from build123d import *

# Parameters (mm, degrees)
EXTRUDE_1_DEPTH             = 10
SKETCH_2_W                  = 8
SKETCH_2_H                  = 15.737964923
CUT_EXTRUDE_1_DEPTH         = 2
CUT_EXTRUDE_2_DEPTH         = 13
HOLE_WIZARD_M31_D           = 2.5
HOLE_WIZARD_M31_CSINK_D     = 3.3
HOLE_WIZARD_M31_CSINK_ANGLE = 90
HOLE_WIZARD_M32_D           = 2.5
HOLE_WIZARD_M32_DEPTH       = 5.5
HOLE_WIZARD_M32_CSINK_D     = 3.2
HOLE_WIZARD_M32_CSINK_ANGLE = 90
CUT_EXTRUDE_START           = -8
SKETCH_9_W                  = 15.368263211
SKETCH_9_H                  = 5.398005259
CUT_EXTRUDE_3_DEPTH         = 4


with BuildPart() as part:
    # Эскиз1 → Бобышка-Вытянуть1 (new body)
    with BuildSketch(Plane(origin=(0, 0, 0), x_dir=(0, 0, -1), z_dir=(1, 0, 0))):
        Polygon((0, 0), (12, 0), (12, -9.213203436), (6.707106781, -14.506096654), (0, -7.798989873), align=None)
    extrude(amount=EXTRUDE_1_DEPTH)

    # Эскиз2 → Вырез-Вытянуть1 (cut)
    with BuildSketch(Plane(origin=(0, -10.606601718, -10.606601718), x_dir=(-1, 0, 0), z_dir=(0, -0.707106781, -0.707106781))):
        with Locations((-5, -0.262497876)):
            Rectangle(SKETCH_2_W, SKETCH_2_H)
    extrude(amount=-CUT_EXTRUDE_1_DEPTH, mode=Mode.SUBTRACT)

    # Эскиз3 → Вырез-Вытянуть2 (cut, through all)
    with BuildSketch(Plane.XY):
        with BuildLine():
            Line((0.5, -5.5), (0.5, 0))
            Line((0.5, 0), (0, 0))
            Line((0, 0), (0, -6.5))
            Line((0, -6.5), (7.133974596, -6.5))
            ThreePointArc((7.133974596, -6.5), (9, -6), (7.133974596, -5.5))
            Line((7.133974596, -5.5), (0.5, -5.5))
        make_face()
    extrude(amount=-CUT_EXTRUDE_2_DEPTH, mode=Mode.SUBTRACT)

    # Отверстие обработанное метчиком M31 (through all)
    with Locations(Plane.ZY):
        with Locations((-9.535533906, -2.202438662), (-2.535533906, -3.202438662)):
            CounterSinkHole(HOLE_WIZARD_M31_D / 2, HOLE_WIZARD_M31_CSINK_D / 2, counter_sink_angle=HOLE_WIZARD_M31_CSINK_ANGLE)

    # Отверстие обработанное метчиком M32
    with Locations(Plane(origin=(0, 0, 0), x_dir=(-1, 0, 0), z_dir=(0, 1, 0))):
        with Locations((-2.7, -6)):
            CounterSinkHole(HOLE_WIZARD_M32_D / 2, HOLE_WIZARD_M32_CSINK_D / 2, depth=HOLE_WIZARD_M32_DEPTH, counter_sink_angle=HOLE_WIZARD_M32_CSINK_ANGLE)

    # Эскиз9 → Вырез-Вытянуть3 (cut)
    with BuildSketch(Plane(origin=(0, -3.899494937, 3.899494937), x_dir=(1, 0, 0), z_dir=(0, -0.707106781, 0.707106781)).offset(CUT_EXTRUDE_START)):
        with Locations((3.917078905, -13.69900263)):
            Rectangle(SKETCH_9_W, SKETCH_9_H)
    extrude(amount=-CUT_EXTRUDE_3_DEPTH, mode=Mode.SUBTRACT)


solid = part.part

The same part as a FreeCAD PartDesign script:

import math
import FreeCAD as App
import Part
import Sketcher
from FreeCAD import Vector
Q = App.Units.Quantity


def add_polygon(sketch, points):
    """Adds a closed chain of lines whose ends are joined by coincident constraints."""
    first, n = sketch.GeometryCount, len(points)
    for a, b in zip(points, points[1:] + points[:1]):
        sketch.addGeometry(Part.LineSegment(App.Vector(*a, 0), App.Vector(*b, 0)), False)
    for i in range(n):
        sketch.addConstraint(Sketcher.Constraint("Coincident", first + i, 2, first + (i + 1) % n, 1))

doc = App.newDocument("Part")
body = doc.addObject("PartDesign::Body", "Body")

# Sketch on YZ plane
sketch1 = doc.addObject("Sketcher::SketchObject", "Sketch")
body.addObject(sketch1)
sketch1.AttachmentSupport = (doc.YZ_Plane, [""])
sketch1.MapMode = "FlatFace"
add_polygon(sketch1, [(0, -12), (0, 0), (-8, 0), (-15, -7), (-9, -12)])  # lines 0-4
sketch1.addConstraint([
    Sketcher.Constraint("Vertical", 0),
    Sketcher.Constraint("Horizontal", 1),
    Sketcher.Constraint("Horizontal", 4),
    Sketcher.Constraint("Coincident", 0, 2, -1, 1),
    Sketcher.Constraint("Perpendicular", 2, 3),
    Sketcher.Constraint("DistanceY", 0, 1, 0, 2, Q("12 mm")),
    Sketcher.Constraint("Angle", 2, Q("-135 deg")),
    Sketcher.Constraint("DistanceX", 1, 2, 1, 1, Q("7.79899 mm")),
    Sketcher.Constraint("Distance", 2, Q("9.485281 mm")),
])
pad1 = doc.addObject("PartDesign::Pad", "Pad")
body.addObject(pad1)
pad1.Profile = sketch1
pad1.Length = 10

# Sketch on an angled plane
sketch2 = doc.addObject("Sketcher::SketchObject", "Sketch001")
body.addObject(sketch2)
sketch2.Placement = App.Placement(Vector(0, -10.606602, -10.606602), App.Rotation(Vector(-1, 0, 0), Vector(0, 0.707106781, -0.707106781), Vector(0, -0.707106781, -0.707106781), "ZXY"))
add_polygon(sketch2, [(-9, 8), (-9, -8), (-1, -8), (-1, 8)])  # lines 0-3
sketch2.addConstraint([
    Sketcher.Constraint("Vertical", 0),
    Sketcher.Constraint("Horizontal", 1),
    Sketcher.Constraint("Vertical", 2),
    Sketcher.Constraint("Horizontal", 3),
    Sketcher.Constraint("DistanceX", 1, 1, 1, 2, Q("8 mm")),
    Sketcher.Constraint("DistanceX", 0, 2, -1, 1, Q("9 mm")),
    Sketcher.Constraint("DistanceY", 0, 2, 0, 1, Q("15.737965 mm")),
    Sketcher.Constraint("DistanceY", 0, 2, -1, 1, Q("8.13148 mm")),
])
pocket1 = doc.addObject("PartDesign::Pocket", "Pocket")
body.addObject(pocket1)
pocket1.Profile = sketch2
pocket1.Length = 2

# Sketch on XY plane
sketch3 = doc.addObject("Sketcher::SketchObject", "Sketch002")
body.addObject(sketch3)
sketch3.AttachmentSupport = (doc.XY_Plane, [""])
sketch3.MapMode = "FlatFace"
sketch3.addGeometry([
    Part.LineSegment(Vector(0.5, -5.5, 0), Vector(0.5, 0, 0)),  # 0
    Part.LineSegment(Vector(0.5, 0, 0), Vector(0, 0, 0)),  # 1
    Part.LineSegment(Vector(0, 0, 0), Vector(0, -6.5, 0)),  # 2
    Part.LineSegment(Vector(0, -6.5, 0), Vector(7.1, -6.5, 0)),  # 3
    Part.ArcOfCircle(Part.Circle(Vector(8, -6, 0), Vector(0, 0, 1), 1), math.radians(-150), math.radians(150)),  # 4
    Part.LineSegment(Vector(7.1, -5.5, 0), Vector(0.5, -5.5, 0)),  # 5
], False)
sketch3.addConstraint([
    Sketcher.Constraint("Coincident", 0, 2, 1, 1),
    Sketcher.Constraint("Coincident", 1, 2, 2, 1),
    Sketcher.Constraint("Coincident", 2, 2, 3, 1),
    Sketcher.Constraint("Coincident", 3, 2, 4, 1),
    Sketcher.Constraint("Coincident", 4, 2, 5, 1),
    Sketcher.Constraint("Coincident", 5, 2, 0, 1),
    Sketcher.Constraint("Vertical", 0),
    Sketcher.Constraint("Horizontal", 1),
    Sketcher.Constraint("Vertical", 2),
    Sketcher.Constraint("Horizontal", 3),
    Sketcher.Constraint("Horizontal", 5),
    Sketcher.Constraint("Coincident", 1, 2, -1, 1),
    Sketcher.Constraint("Vertical", 3, 2, 4, 2),
    Sketcher.Constraint("Radius", 4, Q("1 mm")),
    Sketcher.Constraint("DistanceX", 1, 2, 1, 1, Q("0.5 mm")),
    Sketcher.Constraint("DistanceY", 0, 1, 0, 2, Q("5.5 mm")),
    Sketcher.Constraint("DistanceY", 2, 2, 2, 1, Q("6.5 mm")),
    Sketcher.Constraint("DistanceX", -1, 1, 4, 3, Q("8 mm")),
])
pocket2 = doc.addObject("PartDesign::Pocket", "Pocket001")
body.addObject(pocket2)
pocket2.Profile = sketch3
pocket2.Type = "ThroughAll"

# Sketch on YZ plane
sketch4 = doc.addObject("Sketcher::SketchObject", "Sketch003")
body.addObject(sketch4)
sketch4.AttachmentSupport = (doc.YZ_Plane, [""])
sketch4.MapMode = "FlatFace"
sketch4.addGeometry([
    Part.Circle(Vector(-2.2, -9.5, 0), Vector(0, 0, 1), 1.2),
    Part.Circle(Vector(-3.2, -2.5, 0), Vector(0, 0, 1), 1.2),
], False)
sketch4.addConstraint([
    Sketcher.Constraint("Equal", 0, 1),
    Sketcher.Constraint("Diameter", 0, Q("2.5 mm")),
    Sketcher.Constraint("DistanceX", 1, 3, 0, 3, Q("1 mm")),
    Sketcher.Constraint("DistanceY", 0, 3, 1, 3, Q("7 mm")),
    Sketcher.Constraint("DistanceX", 0, 3, -1, 1, Q("2.202439 mm")),
    Sketcher.Constraint("DistanceY", 0, 3, -1, 1, Q("9.535534 mm")),
])
doc.recompute()
hole = doc.addObject("PartDesign::Hole", "Hole")
body.addObject(hole)
hole.Profile = sketch4
hole.ThreadType = "None"
hole.Diameter = 2.5
hole.DepthType = "ThroughAll"
hole.HoleCutType = "Countersink"
hole.HoleCutDiameter = 3.3
hole.HoleCutCountersinkAngle = 90
hole.Reversed = True

# Sketch on XZ plane
sketch5 = doc.addObject("Sketcher::SketchObject", "Sketch004")
body.addObject(sketch5)
sketch5.AttachmentSupport = (doc.XZ_Plane, [""])
sketch5.MapMode = "FlatFace"
sketch5.addGeometry(Part.Circle(Vector(2.7, -6, 0), Vector(0, 0, 1), 1.2), False)
sketch5.addConstraint([
    Sketcher.Constraint("Diameter", 0, Q("2.5 mm")),
    Sketcher.Constraint("DistanceY", 0, 3, -1, 1, Q("6 mm")),
    Sketcher.Constraint("DistanceX", -1, 1, 0, 3, Q("2.7 mm")),
])
doc.recompute()
hole2 = doc.addObject("PartDesign::Hole", "Hole001")
body.addObject(hole2)
hole2.Profile = sketch5
hole2.ThreadType = "None"
hole2.Diameter = 2.5
hole2.DepthType = "Dimension"
hole2.Depth = 5.5
hole2.DrillPoint = "Flat"
hole2.HoleCutType = "Countersink"
hole2.HoleCutDiameter = 3.2
hole2.HoleCutCountersinkAngle = 90
hole2.Reversed = True

# Sketch on an angled plane
sketch6 = doc.addObject("Sketcher::SketchObject", "Sketch005")
body.addObject(sketch6)
sketch6.Placement = App.Placement(Vector(0, 1.757359, -1.757359), App.Rotation(Vector(1, 0, 0), Vector(0, 0.707106781, 0.707106781), Vector(0, -0.707106781, 0.707106781), "ZXY"))
add_polygon(sketch6, [(-4, -11), (-4, -16), (12, -16), (12, -11)])  # lines 0-3
sketch6.addConstraint([
    Sketcher.Constraint("Vertical", 0),
    Sketcher.Constraint("Horizontal", 1),
    Sketcher.Constraint("Vertical", 2),
    Sketcher.Constraint("Horizontal", 3),
    Sketcher.Constraint("DistanceY", 2, 2, -1, 1, Q("11 mm")),
    Sketcher.Constraint("DistanceX", 1, 1, 1, 2, Q("15.368263 mm")),
    Sketcher.Constraint("DistanceY", 0, 2, 0, 1, Q("5.398005 mm")),
    Sketcher.Constraint("DistanceX", -1, 1, 1, 2, Q("11.601211 mm")),
])
pocket3 = doc.addObject("PartDesign::Pocket", "Pocket002")
body.addObject(pocket3)
pocket3.Profile = sketch6
pocket3.Length = 4

doc.recompute()
